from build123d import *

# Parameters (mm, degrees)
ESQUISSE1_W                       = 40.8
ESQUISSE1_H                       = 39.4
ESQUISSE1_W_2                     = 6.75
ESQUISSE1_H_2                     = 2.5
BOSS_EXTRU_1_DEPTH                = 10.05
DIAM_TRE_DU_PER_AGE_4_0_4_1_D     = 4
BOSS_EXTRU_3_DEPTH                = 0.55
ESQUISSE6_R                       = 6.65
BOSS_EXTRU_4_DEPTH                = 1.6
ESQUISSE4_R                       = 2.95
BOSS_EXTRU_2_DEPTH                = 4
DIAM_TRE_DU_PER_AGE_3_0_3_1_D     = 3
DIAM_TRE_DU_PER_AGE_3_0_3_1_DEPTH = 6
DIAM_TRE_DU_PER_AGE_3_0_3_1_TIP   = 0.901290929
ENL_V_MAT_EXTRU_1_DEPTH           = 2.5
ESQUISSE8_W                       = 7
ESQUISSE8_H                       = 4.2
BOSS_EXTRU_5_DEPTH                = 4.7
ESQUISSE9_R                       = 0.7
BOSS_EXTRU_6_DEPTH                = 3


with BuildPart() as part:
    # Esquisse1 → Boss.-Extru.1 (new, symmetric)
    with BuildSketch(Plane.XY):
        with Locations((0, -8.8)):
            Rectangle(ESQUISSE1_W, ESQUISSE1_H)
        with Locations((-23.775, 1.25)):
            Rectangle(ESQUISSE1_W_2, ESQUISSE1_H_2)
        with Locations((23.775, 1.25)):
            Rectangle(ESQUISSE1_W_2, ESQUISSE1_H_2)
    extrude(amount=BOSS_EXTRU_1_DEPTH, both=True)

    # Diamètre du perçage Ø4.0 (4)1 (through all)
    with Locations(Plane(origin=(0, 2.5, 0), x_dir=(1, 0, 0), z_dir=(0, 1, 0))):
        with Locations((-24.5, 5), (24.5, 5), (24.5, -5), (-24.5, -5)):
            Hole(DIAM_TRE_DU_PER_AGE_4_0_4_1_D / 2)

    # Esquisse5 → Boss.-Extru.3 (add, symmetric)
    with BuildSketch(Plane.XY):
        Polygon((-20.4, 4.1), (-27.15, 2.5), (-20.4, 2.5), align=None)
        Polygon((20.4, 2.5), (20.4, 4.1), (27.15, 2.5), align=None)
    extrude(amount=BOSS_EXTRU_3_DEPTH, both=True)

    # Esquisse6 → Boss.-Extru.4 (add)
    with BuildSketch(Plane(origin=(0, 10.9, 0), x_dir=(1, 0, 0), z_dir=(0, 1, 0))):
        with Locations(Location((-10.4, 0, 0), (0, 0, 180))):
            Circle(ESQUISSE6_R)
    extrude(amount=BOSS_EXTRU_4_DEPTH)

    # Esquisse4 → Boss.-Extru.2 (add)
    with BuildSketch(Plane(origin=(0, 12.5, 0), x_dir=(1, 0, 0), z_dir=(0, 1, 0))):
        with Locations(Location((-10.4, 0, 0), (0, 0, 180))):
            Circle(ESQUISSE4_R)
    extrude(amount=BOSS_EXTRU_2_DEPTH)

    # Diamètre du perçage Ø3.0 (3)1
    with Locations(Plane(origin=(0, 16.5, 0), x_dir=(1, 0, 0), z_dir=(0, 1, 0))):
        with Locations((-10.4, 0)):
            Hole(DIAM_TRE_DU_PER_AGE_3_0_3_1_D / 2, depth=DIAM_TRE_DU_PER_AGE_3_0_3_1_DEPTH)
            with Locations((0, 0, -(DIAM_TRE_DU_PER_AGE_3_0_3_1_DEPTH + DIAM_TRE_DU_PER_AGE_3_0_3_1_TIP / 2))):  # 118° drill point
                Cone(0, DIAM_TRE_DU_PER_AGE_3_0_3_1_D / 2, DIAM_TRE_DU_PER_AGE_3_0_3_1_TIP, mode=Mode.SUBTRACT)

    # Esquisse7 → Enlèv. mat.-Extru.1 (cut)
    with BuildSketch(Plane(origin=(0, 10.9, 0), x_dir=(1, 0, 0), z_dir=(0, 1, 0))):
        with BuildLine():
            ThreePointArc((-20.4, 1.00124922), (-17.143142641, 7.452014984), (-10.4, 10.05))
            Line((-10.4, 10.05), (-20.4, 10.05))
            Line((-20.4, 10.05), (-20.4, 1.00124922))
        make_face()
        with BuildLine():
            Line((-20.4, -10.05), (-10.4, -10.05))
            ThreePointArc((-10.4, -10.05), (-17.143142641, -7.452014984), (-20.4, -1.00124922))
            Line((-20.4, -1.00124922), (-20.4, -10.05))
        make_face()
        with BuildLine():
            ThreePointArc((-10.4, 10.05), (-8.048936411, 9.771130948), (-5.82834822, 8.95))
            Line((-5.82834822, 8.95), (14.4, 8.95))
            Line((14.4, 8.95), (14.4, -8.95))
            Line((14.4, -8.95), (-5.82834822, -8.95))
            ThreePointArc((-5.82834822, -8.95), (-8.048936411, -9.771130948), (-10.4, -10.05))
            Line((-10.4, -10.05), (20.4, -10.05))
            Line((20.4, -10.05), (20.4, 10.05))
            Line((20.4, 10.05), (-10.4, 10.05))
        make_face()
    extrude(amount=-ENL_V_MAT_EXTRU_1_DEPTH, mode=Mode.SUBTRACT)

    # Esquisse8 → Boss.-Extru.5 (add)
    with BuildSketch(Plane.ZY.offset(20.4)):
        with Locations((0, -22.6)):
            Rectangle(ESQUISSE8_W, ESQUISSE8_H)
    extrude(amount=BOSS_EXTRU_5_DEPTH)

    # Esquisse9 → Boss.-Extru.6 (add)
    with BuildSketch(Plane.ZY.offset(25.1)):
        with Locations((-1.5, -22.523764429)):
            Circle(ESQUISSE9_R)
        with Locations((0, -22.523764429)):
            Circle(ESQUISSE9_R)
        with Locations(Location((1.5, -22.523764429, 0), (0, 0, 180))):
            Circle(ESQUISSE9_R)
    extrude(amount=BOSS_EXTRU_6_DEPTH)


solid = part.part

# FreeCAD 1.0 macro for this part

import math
import FreeCAD as App
import Part
import Sketcher
from FreeCAD import Vector
Q = App.Units.Quantity


def add_polygon(sketch, points):
    """Adds a closed chain of lines whose ends are joined by coincident constraints."""
    first, n = sketch.GeometryCount, len(points)
    for a, b in zip(points, points[1:] + points[:1]):
        sketch.addGeometry(Part.LineSegment(App.Vector(*a, 0), App.Vector(*b, 0)), False)
    for i in range(n):
        sketch.addConstraint(Sketcher.Constraint("Coincident", first + i, 2, first + (i + 1) % n, 1))

doc = App.newDocument("Part")
body = doc.addObject("PartDesign::Body", "Body")

# Sketch on XY plane
sketch1 = body.newObject("Sketcher::SketchObject", "Sketch")
sketch1.AttachmentSupport = (doc.getObject("XY_Plane"), [""])
sketch1.MapMode = "FlatFace"
add_polygon(sketch1, [(-20.4, 0), (-20.4, -28.5), (20.4, -28.5), (20.4, 0), (27.15, 0), (27.15, 2.5), (20.4, 2.5), (20.4, 10.9), (-20.4, 10.9), (-20.4, 2.5), (-27.15, 2.5), (-27.15, 0)])  # lines 0-11
sketch1.addConstraint([
    Sketcher.Constraint("Vertical", 0),
    Sketcher.Constraint("Horizontal", 1),
    Sketcher.Constraint("Vertical", 2),
    Sketcher.Constraint("Horizontal", 3),
    Sketcher.Constraint("Vertical", 4),
    Sketcher.Constraint("Horizontal", 5),
    Sketcher.Constraint("Vertical", 6),
    Sketcher.Constraint("Horizontal", 7),
    Sketcher.Constraint("Vertical", 8),
    Sketcher.Constraint("Horizontal", 9),
    Sketcher.Constraint("Vertical", 10),
    Sketcher.Constraint("Horizontal", 11),
    Sketcher.Constraint("Symmetric", 3, 2, 10, 2, -1, 1),
    Sketcher.Constraint("Symmetric", 5, 2, 8, 2, -2),
    Sketcher.Constraint("Symmetric", 2, 2, 11, 2, -2),
    Sketcher.Constraint("Vertical", 2, 2, 5, 2),
    Sketcher.Constraint("DistanceX", 1, 1, 1, 2, Q("40.8 mm")),
    Sketcher.Constraint("DistanceY", 0, 2, 0, 1, Q("28.5 mm")),
    Sketcher.Constraint("DistanceY", 4, 1, 4, 2, Q("2.5 mm")),
    Sketcher.Constraint("DistanceY", 6, 1, 6, 2, Q("8.4 mm")),
    Sketcher.Constraint("DistanceX", 3, 1, 3, 2, Q("6.75 mm")),
])
pad1 = body.newObject("PartDesign::Pad", "Pad")
pad1.Profile = sketch1
pad1.Length = 20.1
pad1.Midplane = True

# Sketch on XZ plane
sketch2 = body.newObject("Sketcher::SketchObject", "Sketch001")
sketch2.AttachmentSupport = (doc.getObject("XZ_Plane"), [""])
sketch2.MapMode = "FlatFace"
sketch2.AttachmentOffset = App.Placement(Vector(0, 0, -2.5), App.Rotation())
sketch2.addGeometry([
    Part.Circle(Vector(-24.5, -5, 0), Vector(0, 0, 1), 2),
    Part.Circle(Vector(24.5, -5, 0), Vector(0, 0, 1), 2),
    Part.Circle(Vector(24.5, 5, 0), Vector(0, 0, 1), 2),
    Part.Circle(Vector(-24.5, 5, 0), Vector(0, 0, 1), 2),
], False)
sketch2.addConstraint([
    Sketcher.Constraint("Equal", 0, 1),
    Sketcher.Constraint("Equal", 1, 2),
    Sketcher.Constraint("Equal", 2, 3),
    Sketcher.Constraint("Symmetric", 0, 3, 2, 3, -1, 1),
    Sketcher.Constraint("Symmetric", 1, 3, 3, 3, -1, 1),
    Sketcher.Constraint("Symmetric", 0, 3, 1, 3, -2),
    Sketcher.Constraint("Diameter", 0, Q("4 mm")),
    Sketcher.Constraint("DistanceY", 0, 3, -1, 1, Q("5 mm")),
    Sketcher.Constraint("DistanceX", 0, 3, 1, 3, Q("49 mm")),
])
doc.recompute()
hole = body.newObject("PartDesign::Hole", "Hole")
hole.Profile = sketch2
hole.ThreadType = "None"
hole.Diameter = 4
hole.DepthType = "ThroughAll"
hole.Reversed = True

# Sketch on XY plane
sketch3 = body.newObject("Sketcher::SketchObject", "Sketch002")
sketch3.AttachmentSupport = (doc.getObject("XY_Plane"), [""])
sketch3.MapMode = "FlatFace"
add_polygon(sketch3, [(-20.4, 4.1), (-27.15, 2.5), (-20.4, 2.5)])  # lines 0-2
add_polygon(sketch3, [(20.4, 4.1), (20.4, 2.5), (27.15, 2.5)])  # lines 3-5
sketch3.addConstraint([
    Sketcher.Constraint("Horizontal", 1),
    Sketcher.Constraint("Vertical", 2),
    Sketcher.Constraint("Vertical", 3),
    Sketcher.Constraint("Horizontal", 4),
    Sketcher.Constraint("Symmetric", 1, 2, 3, 2, -2),
    Sketcher.Constraint("Horizontal", 2, 2, 5, 2),
    Sketcher.Constraint("Equal", 1, 4),
    Sketcher.Constraint("DistanceY", 2, 1, 2, 2, Q("1.6 mm")),
    Sketcher.Constraint("DistanceX", 1, 1, 1, 2, Q("6.75 mm")),
    Sketcher.Constraint("DistanceY", -1, 1, 0, 2, Q("2.5 mm")),
    Sketcher.Constraint("DistanceX", 1, 2, -1, 1, Q("20.4 mm")),
])
pad2 = body.newObject("PartDesign::Pad", "Pad001")
pad2.Profile = sketch3
pad2.Length = 1.1
pad2.Midplane = True

# Sketch on XZ plane
sketch4 = body.newObject("Sketcher::SketchObject", "Sketch003")
sketch4.AttachmentSupport = (doc.getObject("XZ_Plane"), [""])
sketch4.MapMode = "FlatFace"
sketch4.AttachmentOffset = App.Placement(Vector(0, 0, -10.9), App.Rotation())
sketch4.addGeometry(Part.Circle(Vector(-10.4, 0, 0), Vector(0, 0, 1), 6.65), False)
sketch4.addConstraint([
    Sketcher.Constraint("PointOnObject", 0, 3, -1),
    Sketcher.Constraint("Diameter", 0, Q("13.3 mm")),
    Sketcher.Constraint("DistanceX", 0, 3, -1, 1, Q("10.4 mm")),
])
pad3 = body.newObject("PartDesign::Pad", "Pad002")
pad3.Profile = sketch4
pad3.Length = 1.6
pad3.Reversed = True

# Sketch on XZ plane
sketch5 = body.newObject("Sketcher::SketchObject", "Sketch004")
sketch5.AttachmentSupport = (doc.getObject("XZ_Plane"), [""])
sketch5.MapMode = "FlatFace"
sketch5.AttachmentOffset = App.Placement(Vector(0, 0, -12.5), App.Rotation())
sketch5.addGeometry(Part.Circle(Vector(-10.4, 0, 0), Vector(0, 0, 1), 2.95), False)
sketch5.addConstraint([
    Sketcher.Constraint("PointOnObject", 0, 3, -1),
    Sketcher.Constraint("Diameter", 0, Q("5.9 mm")),
    Sketcher.Constraint("DistanceX", 0, 3, -1, 1, Q("10.4 mm")),
])
pad4 = body.newObject("PartDesign::Pad", "Pad003")
pad4.Profile = sketch5
pad4.Length = 4
pad4.Reversed = True

# Sketch on XZ plane
sketch6 = body.newObject("Sketcher::SketchObject", "Sketch005")
sketch6.AttachmentSupport = (doc.getObject("XZ_Plane"), [""])
sketch6.MapMode = "FlatFace"
sketch6.AttachmentOffset = App.Placement(Vector(0, 0, -16.5), App.Rotation())
sketch6.addGeometry(Part.Circle(Vector(-10.4, 0, 0), Vector(0, 0, 1), 1.5), False)
sketch6.addConstraint([
    Sketcher.Constraint("PointOnObject", 0, 3, -1),
    Sketcher.Constraint("Diameter", 0, Q("3 mm")),
    Sketcher.Constraint("DistanceX", 0, 3, -1, 1, Q("10.4 mm")),
])
doc.recompute()
hole2 = body.newObject("PartDesign::Hole", "Hole001")
hole2.Profile = sketch6
hole2.ThreadType = "None"
hole2.Diameter = 3
hole2.DepthType = "Dimension"
hole2.Depth = 6
hole2.DrillPoint = "Angled"
hole2.DrillPointAngle = 118
hole2.Reversed = True

# Sketch on XZ plane
sketch7 = body.newObject("Sketcher::SketchObject", "Sketch006")
sketch7.AttachmentSupport = (doc.getObject("XZ_Plane"), [""])
sketch7.MapMode = "FlatFace"
sketch7.AttachmentOffset = App.Placement(Vector(0, 0, -10.9), App.Rotation())
sketch7.addGeometry([
    Part.ArcOfCircle(Part.Circle(Vector(-10.4, 0, 0), Vector(0, 0, 1), 10.05), math.radians(-174.28232), math.radians(-90)),  # 0
    Part.LineSegment(Vector(-10.4, -10.05, 0), Vector(-20.4, -10.05, 0)),  # 1
    Part.LineSegment(Vector(-20.4, -10.05, 0), Vector(-20.4, -1.001249, 0)),  # 2
    Part.LineSegment(Vector(-20.4, 10.05, 0), Vector(-10.4, 10.05, 0)),  # 3
    Part.ArcOfCircle(Part.Circle(Vector(-10.4, 0, 0), Vector(0, 0, 1), 10.05), math.radians(90), math.radians(174.28232)),  # 4
    Part.LineSegment(Vector(-20.4, 1.001249, 0), Vector(-20.4, 10.05, 0)),  # 5
    Part.ArcOfCircle(Part.Circle(Vector(-10.4, 0, 0), Vector(0, 0, 1), 10.05), math.radians(-90), math.radians(-62.942097)),  # 6
    Part.LineSegment(Vector(-5.828348, -8.95, 0), Vector(14.4, -8.95, 0)),  # 7
    Part.LineSegment(Vector(14.4, -8.95, 0), Vector(14.4, 8.95, 0)),  # 8
    Part.LineSegment(Vector(14.4, 8.95, 0), Vector(-5.828348, 8.95, 0)),  # 9
    Part.ArcOfCircle(Part.Circle(Vector(-10.4, 0, 0), Vector(0, 0, 1), 10.05), math.radians(62.942097), math.radians(90)),  # 10
    Part.LineSegment(Vector(-10.4, 10.05, 0), Vector(20.4, 10.05, 0)),  # 11
    Part.LineSegment(Vector(20.4, 10.05, 0), Vector(20.4, -10.05, 0)),  # 12
    Part.LineSegment(Vector(20.4, -10.05, 0), Vector(-10.4, -10.05, 0)),  # 13
], False)
sketch7.addConstraint([
    Sketcher.Constraint("Tangent", 0, 2, 1, 1),
    Sketcher.Constraint("Coincident", 1, 2, 2, 1),
    Sketcher.Constraint("Coincident", 2, 2, 0, 1),
    Sketcher.Constraint("Tangent", 3, 2, 4, 1),
    Sketcher.Constraint("Coincident", 4, 2, 5, 1),
    Sketcher.Constraint("Coincident", 5, 2, 3, 1),
    Sketcher.Constraint("Coincident", 6, 2, 7, 1),
    Sketcher.Constraint("Coincident", 7, 2, 8, 1),
    Sketcher.Constraint("Coincident", 8, 2, 9, 1),
    Sketcher.Constraint("Coincident", 9, 2, 10, 1),
    Sketcher.Constraint("Tangent", 10, 2, 11, 1),
    Sketcher.Constraint("Coincident", 11, 2, 12, 1),
    Sketcher.Constraint("Coincident", 12, 2, 13, 1),
    Sketcher.Constraint("Tangent", 13, 2, 6, 1),
    Sketcher.Constraint("Horizontal", 1),
    Sketcher.Constraint("Vertical", 2),
    Sketcher.Constraint("Horizontal", 3),
    Sketcher.Constraint("Vertical", 5),
    Sketcher.Constraint("Horizontal", 7),
    Sketcher.Constraint("Vertical", 8),
    Sketcher.Constraint("Horizontal", 9),
    Sketcher.Constraint("Horizontal", 11),
    Sketcher.Constraint("Vertical", 12),
    Sketcher.Constraint("Horizontal", 13),
    Sketcher.Constraint("Coincident", 4, 3, 0, 3),
    Sketcher.Constraint("Coincident", 6, 3, 0, 3),
    Sketcher.Constraint("Coincident", 10, 3, 0, 3),
    Sketcher.Constraint("Equal", 0, 4),
    Sketcher.Constraint("Equal", 4, 6),
    Sketcher.Constraint("Equal", 6, 10),
    Sketcher.Constraint("Symmetric", 1, 2, 11, 2, -1, 1),
    Sketcher.Constraint("Vertical", 2, 2, 4, 2),
    Sketcher.Constraint("Vertical", 6, 2, 9, 2),
    Sketcher.Constraint("DistanceX", 1, 2, 1, 1, Q("10 mm")),
    Sketcher.Constraint("Radius", 0, Q("10.05 mm")),
    Sketcher.Constraint("DistanceX", 11, 1, 11, 2, Q("30.8 mm")),
    Sketcher.Constraint("DistanceY", 8, 1, 8, 2, Q("17.9 mm")),
    Sketcher.Constraint("DistanceX", 8, 2, 11, 2, Q("6 mm")),
])
pocket1 = body.newObject("PartDesign::Pocket", "Pocket")
pocket1.Profile = sketch7
pocket1.Length = 2.5
pocket1.Reversed = True

# Sketch on YZ plane
sketch8 = body.newObject("Sketcher::SketchObject", "Sketch007")
sketch8.AttachmentSupport = (doc.getObject("YZ_Plane"), [""])
sketch8.MapMode = "FlatFace"
sketch8.AttachmentOffset = App.Placement(Vector(0, 0, -20.4), App.Rotation())
add_polygon(sketch8, [(-20.5, -3.5), (-24.7, -3.5), (-24.7, 3.5), (-20.5, 3.5)])  # lines 0-3
sketch8.addConstraint([
    Sketcher.Constraint("Horizontal", 0),
    Sketcher.Constraint("Vertical", 1),
    Sketcher.Constraint("Horizontal", 2),
    Sketcher.Constraint("Vertical", 3),
    Sketcher.Constraint("DistanceY", 1, 1, 1, 2, Q("7 mm")),
    Sketcher.Constraint("DistanceX", 0, 2, 0, 1, Q("4.2 mm")),
    Sketcher.Constraint("DistanceX", 0, 2, -1, 1, Q("24.7 mm")),
    Sketcher.Constraint("DistanceY", 0, 2, -1, 1, Q("3.5 mm")),
])
pad5 = body.newObject("PartDesign::Pad", "Pad004")
pad5.Profile = sketch8
pad5.Length = 4.7
pad5.Reversed = True

# Sketch on YZ plane
sketch9 = body.newObject("Sketcher::SketchObject", "Sketch008")
sketch9.AttachmentSupport = (doc.getObject("YZ_Plane"), [""])
sketch9.MapMode = "FlatFace"
sketch9.AttachmentOffset = App.Placement(Vector(0, 0, -25.1), App.Rotation())
sketch9.addGeometry([
    Part.Circle(Vector(-22.523764, -1.5, 0), Vector(0, 0, 1), 0.7),
    Part.Circle(Vector(-22.523764, 0, 0), Vector(0, 0, 1), 0.7),
    Part.Circle(Vector(-22.523764, 1.5, 0), Vector(0, 0, 1), 0.7),
], False)
sketch9.addConstraint([
    Sketcher.Constraint("Equal", 0, 1),
    Sketcher.Constraint("Equal", 1, 2),
    Sketcher.Constraint("Symmetric", 0, 3, 2, 3, -1),
    Sketcher.Constraint("PointOnObject", 1, 3, -1),
    Sketcher.Constraint("Vertical", 0, 3, 1, 3),
    Sketcher.Constraint("Diameter", 0, Q("1.4 mm")),
    Sketcher.Constraint("DistanceY", 0, 3, 2, 3, Q("3 mm")),
    Sketcher.Constraint("DistanceX", 0, 3, -1, 1, Q("22.523764 mm")),
])
pad6 = body.newObject("PartDesign::Pad", "Pad005")
pad6.Profile = sketch9
pad6.Length = 3
pad6.Reversed = True

doc.recompute()
